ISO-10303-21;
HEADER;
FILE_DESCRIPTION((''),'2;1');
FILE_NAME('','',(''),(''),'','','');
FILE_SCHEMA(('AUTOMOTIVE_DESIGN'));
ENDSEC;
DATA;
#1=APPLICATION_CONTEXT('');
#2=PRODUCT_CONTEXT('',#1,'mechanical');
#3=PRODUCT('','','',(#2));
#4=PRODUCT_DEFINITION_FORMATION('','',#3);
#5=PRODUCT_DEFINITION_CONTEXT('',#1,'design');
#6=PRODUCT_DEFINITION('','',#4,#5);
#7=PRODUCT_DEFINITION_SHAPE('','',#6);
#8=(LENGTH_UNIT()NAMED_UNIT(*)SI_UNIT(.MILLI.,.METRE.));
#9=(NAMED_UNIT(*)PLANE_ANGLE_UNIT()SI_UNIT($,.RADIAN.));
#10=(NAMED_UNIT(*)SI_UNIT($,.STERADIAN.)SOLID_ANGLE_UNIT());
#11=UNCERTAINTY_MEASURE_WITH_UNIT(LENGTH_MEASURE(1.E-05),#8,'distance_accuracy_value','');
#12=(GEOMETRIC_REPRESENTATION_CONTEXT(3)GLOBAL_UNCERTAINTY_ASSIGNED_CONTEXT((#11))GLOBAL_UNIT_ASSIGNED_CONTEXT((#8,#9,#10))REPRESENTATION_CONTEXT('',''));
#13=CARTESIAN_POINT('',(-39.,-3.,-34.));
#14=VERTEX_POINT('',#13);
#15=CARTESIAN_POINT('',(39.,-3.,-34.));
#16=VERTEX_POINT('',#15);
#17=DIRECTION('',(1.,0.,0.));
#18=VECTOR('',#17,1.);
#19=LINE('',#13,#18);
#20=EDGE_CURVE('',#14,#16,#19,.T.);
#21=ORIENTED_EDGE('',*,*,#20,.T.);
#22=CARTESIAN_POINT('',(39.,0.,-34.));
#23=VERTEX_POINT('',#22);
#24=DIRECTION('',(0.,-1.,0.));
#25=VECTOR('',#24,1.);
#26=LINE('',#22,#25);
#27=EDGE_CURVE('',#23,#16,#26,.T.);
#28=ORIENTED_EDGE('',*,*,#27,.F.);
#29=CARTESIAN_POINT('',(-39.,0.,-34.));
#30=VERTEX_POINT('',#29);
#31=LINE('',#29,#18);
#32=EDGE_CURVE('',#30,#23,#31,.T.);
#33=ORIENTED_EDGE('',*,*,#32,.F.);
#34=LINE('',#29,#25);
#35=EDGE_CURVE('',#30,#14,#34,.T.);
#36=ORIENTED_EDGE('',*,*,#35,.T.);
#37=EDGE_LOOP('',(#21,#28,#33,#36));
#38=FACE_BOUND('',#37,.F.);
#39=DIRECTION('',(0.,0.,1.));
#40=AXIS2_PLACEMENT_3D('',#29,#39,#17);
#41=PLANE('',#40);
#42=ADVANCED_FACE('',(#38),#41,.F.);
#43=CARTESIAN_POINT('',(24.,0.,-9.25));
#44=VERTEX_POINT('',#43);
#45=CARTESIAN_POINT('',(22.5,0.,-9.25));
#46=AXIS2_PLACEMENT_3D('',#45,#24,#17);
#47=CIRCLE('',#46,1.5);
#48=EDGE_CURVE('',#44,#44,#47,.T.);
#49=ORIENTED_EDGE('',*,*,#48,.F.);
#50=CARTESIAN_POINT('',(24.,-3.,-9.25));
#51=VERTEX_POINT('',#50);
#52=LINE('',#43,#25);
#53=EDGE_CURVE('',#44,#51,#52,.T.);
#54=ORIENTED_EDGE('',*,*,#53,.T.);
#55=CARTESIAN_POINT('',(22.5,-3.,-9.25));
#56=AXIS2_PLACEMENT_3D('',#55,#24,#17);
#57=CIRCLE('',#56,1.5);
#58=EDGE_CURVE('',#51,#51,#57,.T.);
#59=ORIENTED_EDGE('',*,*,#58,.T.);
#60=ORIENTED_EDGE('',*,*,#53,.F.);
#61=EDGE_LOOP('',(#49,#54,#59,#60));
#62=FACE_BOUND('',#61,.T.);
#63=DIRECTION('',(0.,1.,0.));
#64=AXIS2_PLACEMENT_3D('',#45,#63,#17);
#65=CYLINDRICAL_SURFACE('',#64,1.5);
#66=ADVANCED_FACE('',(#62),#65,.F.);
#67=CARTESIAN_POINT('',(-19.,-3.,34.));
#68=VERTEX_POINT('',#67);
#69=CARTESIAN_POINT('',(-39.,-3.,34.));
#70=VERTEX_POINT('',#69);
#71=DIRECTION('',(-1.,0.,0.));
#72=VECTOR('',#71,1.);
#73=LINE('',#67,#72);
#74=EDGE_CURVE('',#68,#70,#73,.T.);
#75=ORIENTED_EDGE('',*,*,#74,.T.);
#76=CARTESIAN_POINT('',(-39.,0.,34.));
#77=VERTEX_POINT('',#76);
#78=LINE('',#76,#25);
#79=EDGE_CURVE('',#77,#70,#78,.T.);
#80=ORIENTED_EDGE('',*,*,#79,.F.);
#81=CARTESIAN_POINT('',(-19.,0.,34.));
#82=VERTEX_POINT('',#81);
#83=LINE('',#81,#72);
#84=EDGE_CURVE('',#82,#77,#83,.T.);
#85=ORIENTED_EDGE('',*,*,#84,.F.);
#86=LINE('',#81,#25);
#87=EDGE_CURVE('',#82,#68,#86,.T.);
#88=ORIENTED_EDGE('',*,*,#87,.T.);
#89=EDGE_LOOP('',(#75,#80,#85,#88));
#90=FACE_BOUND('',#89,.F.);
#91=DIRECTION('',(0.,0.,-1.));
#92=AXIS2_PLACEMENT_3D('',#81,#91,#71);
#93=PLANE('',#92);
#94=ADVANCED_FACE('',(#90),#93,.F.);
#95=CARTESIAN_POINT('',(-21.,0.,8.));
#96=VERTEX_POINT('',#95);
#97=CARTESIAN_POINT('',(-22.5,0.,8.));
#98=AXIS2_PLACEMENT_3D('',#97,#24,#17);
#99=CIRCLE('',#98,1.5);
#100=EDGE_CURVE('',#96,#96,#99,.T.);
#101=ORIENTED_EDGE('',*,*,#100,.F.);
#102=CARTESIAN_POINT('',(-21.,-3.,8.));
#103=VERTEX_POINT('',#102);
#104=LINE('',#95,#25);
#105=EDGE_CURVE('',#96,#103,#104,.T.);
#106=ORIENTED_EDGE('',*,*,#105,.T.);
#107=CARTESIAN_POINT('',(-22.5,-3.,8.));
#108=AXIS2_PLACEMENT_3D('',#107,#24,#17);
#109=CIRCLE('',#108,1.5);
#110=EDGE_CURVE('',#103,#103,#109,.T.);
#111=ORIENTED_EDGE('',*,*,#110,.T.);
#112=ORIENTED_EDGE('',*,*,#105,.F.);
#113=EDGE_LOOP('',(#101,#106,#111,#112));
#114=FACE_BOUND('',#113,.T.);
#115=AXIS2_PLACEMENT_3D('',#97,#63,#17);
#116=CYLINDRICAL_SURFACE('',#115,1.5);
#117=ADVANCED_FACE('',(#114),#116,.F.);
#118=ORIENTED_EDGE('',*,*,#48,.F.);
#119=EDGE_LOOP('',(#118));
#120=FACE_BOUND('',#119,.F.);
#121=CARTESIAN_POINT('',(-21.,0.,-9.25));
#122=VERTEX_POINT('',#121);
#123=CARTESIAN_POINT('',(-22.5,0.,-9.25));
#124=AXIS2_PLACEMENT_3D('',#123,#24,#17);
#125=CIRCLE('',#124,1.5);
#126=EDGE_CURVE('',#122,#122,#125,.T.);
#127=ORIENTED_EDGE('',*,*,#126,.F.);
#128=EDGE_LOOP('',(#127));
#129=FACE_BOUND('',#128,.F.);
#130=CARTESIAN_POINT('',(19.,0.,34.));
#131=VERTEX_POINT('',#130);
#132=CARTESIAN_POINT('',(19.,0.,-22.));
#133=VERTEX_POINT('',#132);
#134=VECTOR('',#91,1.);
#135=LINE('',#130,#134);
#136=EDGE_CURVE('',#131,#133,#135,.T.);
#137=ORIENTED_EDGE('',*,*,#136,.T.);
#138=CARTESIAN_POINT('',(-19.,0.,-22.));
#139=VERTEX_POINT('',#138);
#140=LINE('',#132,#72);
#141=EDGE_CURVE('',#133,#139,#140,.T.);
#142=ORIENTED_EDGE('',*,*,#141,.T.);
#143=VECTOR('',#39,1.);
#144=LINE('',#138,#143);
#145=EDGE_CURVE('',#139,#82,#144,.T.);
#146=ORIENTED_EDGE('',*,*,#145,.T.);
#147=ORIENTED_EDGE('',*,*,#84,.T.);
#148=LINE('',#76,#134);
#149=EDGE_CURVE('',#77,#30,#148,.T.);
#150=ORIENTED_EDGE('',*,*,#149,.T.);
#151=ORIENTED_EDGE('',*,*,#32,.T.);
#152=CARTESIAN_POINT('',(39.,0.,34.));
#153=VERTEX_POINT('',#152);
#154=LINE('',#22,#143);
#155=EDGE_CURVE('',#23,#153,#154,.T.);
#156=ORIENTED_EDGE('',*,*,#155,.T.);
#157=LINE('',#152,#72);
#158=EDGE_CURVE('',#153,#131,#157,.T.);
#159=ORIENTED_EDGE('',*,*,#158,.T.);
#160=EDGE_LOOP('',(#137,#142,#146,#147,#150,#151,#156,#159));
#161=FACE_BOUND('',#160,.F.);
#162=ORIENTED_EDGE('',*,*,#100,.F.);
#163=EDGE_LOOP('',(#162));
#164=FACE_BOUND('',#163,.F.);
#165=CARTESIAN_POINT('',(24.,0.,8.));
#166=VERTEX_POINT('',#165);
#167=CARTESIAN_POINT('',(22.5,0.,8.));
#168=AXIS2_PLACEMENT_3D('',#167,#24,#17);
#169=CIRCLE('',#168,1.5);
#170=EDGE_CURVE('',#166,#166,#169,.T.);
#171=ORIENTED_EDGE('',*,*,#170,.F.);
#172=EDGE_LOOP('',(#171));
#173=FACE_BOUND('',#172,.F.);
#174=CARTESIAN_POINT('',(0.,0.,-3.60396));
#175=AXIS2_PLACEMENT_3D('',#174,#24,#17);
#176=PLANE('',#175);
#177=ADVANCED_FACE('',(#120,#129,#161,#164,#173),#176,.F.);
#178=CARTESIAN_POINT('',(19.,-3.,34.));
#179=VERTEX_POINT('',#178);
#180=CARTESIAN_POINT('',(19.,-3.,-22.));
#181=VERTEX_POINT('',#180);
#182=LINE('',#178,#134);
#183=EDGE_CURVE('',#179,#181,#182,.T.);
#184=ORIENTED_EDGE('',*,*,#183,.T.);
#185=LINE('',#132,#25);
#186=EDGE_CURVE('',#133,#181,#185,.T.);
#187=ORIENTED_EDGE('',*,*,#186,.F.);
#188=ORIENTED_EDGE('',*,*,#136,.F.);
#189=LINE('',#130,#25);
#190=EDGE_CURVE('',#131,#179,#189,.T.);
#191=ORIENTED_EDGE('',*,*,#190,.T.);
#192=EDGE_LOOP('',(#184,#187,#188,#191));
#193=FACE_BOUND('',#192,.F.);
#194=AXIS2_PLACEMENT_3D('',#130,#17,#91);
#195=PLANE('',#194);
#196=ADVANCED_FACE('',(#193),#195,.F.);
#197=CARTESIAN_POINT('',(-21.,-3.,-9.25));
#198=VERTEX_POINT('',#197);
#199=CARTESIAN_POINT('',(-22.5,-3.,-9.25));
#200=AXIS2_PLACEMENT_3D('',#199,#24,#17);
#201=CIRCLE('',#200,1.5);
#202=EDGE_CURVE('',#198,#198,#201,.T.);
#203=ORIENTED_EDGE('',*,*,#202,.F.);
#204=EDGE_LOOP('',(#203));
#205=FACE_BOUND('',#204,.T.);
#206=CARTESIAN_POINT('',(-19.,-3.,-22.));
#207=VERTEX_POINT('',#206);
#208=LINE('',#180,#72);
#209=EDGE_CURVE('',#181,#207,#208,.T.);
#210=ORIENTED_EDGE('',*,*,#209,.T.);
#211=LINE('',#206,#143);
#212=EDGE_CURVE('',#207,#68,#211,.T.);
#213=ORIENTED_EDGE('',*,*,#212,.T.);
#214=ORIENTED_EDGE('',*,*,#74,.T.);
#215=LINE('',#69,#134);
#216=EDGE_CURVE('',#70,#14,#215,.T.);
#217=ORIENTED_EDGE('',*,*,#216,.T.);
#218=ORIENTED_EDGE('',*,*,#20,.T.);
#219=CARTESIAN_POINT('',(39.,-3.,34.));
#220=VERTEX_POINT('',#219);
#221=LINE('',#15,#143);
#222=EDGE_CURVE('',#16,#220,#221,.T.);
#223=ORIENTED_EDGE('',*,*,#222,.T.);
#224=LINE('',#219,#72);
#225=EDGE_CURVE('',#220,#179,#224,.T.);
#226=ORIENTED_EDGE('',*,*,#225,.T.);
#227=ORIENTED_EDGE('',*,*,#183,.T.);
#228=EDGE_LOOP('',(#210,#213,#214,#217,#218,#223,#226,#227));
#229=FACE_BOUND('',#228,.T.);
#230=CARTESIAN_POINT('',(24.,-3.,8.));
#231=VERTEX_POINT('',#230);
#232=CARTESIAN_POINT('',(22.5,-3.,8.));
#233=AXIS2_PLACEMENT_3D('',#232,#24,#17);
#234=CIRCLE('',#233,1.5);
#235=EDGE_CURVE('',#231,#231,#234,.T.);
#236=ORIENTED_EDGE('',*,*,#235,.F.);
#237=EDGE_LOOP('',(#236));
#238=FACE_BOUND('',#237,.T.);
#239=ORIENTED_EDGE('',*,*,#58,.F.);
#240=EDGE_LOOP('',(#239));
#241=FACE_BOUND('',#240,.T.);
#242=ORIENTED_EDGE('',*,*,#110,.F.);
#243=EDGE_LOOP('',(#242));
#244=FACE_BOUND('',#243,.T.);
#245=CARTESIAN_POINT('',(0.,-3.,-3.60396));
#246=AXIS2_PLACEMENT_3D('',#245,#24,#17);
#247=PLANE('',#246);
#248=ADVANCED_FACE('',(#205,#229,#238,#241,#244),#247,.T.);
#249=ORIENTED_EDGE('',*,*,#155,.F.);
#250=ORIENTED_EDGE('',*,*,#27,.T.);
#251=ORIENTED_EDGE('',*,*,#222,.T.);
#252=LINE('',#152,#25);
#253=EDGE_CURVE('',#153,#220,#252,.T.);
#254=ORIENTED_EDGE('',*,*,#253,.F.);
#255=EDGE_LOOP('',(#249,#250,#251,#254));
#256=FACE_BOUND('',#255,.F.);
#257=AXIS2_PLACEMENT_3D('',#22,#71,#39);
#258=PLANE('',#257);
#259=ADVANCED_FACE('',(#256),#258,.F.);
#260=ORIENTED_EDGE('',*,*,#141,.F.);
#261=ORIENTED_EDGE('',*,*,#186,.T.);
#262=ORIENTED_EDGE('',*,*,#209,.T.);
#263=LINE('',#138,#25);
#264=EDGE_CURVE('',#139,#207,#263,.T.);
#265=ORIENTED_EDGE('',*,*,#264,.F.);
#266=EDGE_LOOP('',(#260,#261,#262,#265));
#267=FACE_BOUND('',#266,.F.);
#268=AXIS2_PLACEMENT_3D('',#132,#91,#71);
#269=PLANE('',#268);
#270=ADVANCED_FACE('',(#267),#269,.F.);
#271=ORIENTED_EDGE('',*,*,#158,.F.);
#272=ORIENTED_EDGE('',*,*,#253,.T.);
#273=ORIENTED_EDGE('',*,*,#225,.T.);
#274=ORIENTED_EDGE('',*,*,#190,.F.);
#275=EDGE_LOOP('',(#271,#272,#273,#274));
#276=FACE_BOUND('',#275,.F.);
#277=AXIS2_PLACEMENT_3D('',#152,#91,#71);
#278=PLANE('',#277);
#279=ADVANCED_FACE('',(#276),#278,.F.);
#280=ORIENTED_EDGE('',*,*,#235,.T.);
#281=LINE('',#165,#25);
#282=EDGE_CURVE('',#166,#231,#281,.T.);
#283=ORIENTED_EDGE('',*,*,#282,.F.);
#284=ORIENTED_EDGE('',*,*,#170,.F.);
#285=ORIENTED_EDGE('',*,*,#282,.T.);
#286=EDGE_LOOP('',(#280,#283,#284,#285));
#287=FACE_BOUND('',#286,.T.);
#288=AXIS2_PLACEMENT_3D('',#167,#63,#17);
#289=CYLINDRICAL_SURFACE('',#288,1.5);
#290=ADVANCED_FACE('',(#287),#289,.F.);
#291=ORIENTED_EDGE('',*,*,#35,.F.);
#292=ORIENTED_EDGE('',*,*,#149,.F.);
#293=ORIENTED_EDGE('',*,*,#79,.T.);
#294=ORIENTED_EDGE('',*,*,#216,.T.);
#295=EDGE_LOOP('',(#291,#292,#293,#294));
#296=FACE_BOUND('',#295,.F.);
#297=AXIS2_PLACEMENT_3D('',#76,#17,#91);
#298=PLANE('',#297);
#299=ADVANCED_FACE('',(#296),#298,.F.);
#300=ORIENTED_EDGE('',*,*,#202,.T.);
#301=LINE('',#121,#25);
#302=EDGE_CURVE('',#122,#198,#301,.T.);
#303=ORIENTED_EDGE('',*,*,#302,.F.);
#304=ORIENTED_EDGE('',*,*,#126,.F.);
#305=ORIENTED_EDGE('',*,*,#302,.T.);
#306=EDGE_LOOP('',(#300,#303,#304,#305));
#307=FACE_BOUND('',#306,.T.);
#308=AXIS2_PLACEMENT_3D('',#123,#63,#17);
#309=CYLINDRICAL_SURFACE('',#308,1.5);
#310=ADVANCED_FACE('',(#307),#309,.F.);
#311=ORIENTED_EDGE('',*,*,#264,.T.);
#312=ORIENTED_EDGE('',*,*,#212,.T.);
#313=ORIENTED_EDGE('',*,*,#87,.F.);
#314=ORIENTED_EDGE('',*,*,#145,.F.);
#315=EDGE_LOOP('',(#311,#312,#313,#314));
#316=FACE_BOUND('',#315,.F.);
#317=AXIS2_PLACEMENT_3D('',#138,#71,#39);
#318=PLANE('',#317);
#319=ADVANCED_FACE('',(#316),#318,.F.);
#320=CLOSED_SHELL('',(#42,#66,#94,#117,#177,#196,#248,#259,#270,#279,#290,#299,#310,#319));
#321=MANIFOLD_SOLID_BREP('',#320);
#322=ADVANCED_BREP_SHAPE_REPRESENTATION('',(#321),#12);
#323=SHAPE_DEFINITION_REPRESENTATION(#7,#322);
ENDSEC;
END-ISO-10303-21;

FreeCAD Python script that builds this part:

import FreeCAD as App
import Part
import Sketcher
from FreeCAD import Vector

doc = App.newDocument("Part")
body = doc.addObject("PartDesign::Body", "Body")

sketch1 = body.newObject("Sketcher::SketchObject", "Sketch")
sketch1.AttachmentSupport = (doc.getObject("XZ_Plane"), [""])
sketch1.MapMode = "FlatFace"
sketch1.addGeometry([
    Part.LineSegment(Vector(-39, -34, 0), Vector(39, -34, 0)),
    Part.LineSegment(Vector(39, -34, 0), Vector(39, 34, 0)),
    Part.LineSegment(Vector(39, 34, 0), Vector(19, 34, 0)),
    Part.LineSegment(Vector(19, 34, 0), Vector(19, -22, 0)),
    Part.LineSegment(Vector(19, -22, 0), Vector(-19, -22, 0)),
    Part.LineSegment(Vector(-19, -22, 0), Vector(-19, 34, 0)),
    Part.LineSegment(Vector(-19, 34, 0), Vector(-39, 34, 0)),
    Part.LineSegment(Vector(-39, 34, 0), Vector(-39, -34, 0)),
    Part.Circle(Vector(-22.5, -9.2, 0), Vector(0, 0, 1), 1.5),
    Part.Circle(Vector(22.5, -9.2, 0), Vector(0, 0, 1), 1.5),
    Part.Circle(Vector(-22.5, 8, 0), Vector(0, 0, 1), 1.5),
    Part.Circle(Vector(22.5, 8, 0), Vector(0, 0, 1), 1.5),
], False)
sketch1.addConstraint([
    Sketcher.Constraint("Coincident", 0, 2, 1, 1),
    Sketcher.Constraint("Coincident", 1, 2, 2, 1),
    Sketcher.Constraint("Coincident", 2, 2, 3, 1),
    Sketcher.Constraint("Coincident", 3, 2, 4, 1),
    Sketcher.Constraint("Coincident", 4, 2, 5, 1),
    Sketcher.Constraint("Coincident", 5, 2, 6, 1),
    Sketcher.Constraint("Coincident", 6, 2, 7, 1),
    Sketcher.Constraint("Coincident", 7, 2, 0, 1),
    Sketcher.Constraint("Horizontal", 0),
    Sketcher.Constraint("Vertical", 1),
    Sketcher.Constraint("Horizontal", 2),
    Sketcher.Constraint("Vertical", 3),
    Sketcher.Constraint("Horizontal", 4),
    Sketcher.Constraint("Vertical", 5),
    Sketcher.Constraint("Horizontal", 6),
    Sketcher.Constraint("Vertical", 7),
    Sketcher.Constraint("Equal", 8, 9),
    Sketcher.Constraint("Equal", 9, 10),
    Sketcher.Constraint("Equal", 10, 11),
    Sketcher.Constraint("Symmetric", 0, 2, 6, 2, -1, 1),
    Sketcher.Constraint("Symmetric", 8, 3, 9, 3, -2),
    Sketcher.Constraint("Symmetric", 10, 3, 11, 3, -2),
    Sketcher.Constraint("Symmetric", 2, 2, 5, 2, -2),
    Sketcher.Constraint("Vertical", 8, 3, 10, 3),
    Sketcher.Constraint("Diameter", 8, 3.0),
    Sketcher.Constraint("DistanceX", 0, 1, 0, 2, 78.0),
    Sketcher.Constraint("DistanceX", 2, 2, 2, 1, 20.0),
    Sketcher.Constraint("DistanceY", 1, 1, 1, 2, 68.0),
    Sketcher.Constraint("DistanceY", 3, 2, 3, 1, 56.0),
    Sketcher.Constraint("DistanceY", -1, 1, 10, 3, 8.0),
    Sketcher.Constraint("DistanceX", 8, 3, 9, 3, 45.0),
    Sketcher.Constraint("DistanceY", 8, 3, -1, 1, 9.25),
])
pad1 = body.newObject("PartDesign::Pad", "Pad")
pad1.Profile = sketch1
pad1.Length = 3

doc.recompute()
